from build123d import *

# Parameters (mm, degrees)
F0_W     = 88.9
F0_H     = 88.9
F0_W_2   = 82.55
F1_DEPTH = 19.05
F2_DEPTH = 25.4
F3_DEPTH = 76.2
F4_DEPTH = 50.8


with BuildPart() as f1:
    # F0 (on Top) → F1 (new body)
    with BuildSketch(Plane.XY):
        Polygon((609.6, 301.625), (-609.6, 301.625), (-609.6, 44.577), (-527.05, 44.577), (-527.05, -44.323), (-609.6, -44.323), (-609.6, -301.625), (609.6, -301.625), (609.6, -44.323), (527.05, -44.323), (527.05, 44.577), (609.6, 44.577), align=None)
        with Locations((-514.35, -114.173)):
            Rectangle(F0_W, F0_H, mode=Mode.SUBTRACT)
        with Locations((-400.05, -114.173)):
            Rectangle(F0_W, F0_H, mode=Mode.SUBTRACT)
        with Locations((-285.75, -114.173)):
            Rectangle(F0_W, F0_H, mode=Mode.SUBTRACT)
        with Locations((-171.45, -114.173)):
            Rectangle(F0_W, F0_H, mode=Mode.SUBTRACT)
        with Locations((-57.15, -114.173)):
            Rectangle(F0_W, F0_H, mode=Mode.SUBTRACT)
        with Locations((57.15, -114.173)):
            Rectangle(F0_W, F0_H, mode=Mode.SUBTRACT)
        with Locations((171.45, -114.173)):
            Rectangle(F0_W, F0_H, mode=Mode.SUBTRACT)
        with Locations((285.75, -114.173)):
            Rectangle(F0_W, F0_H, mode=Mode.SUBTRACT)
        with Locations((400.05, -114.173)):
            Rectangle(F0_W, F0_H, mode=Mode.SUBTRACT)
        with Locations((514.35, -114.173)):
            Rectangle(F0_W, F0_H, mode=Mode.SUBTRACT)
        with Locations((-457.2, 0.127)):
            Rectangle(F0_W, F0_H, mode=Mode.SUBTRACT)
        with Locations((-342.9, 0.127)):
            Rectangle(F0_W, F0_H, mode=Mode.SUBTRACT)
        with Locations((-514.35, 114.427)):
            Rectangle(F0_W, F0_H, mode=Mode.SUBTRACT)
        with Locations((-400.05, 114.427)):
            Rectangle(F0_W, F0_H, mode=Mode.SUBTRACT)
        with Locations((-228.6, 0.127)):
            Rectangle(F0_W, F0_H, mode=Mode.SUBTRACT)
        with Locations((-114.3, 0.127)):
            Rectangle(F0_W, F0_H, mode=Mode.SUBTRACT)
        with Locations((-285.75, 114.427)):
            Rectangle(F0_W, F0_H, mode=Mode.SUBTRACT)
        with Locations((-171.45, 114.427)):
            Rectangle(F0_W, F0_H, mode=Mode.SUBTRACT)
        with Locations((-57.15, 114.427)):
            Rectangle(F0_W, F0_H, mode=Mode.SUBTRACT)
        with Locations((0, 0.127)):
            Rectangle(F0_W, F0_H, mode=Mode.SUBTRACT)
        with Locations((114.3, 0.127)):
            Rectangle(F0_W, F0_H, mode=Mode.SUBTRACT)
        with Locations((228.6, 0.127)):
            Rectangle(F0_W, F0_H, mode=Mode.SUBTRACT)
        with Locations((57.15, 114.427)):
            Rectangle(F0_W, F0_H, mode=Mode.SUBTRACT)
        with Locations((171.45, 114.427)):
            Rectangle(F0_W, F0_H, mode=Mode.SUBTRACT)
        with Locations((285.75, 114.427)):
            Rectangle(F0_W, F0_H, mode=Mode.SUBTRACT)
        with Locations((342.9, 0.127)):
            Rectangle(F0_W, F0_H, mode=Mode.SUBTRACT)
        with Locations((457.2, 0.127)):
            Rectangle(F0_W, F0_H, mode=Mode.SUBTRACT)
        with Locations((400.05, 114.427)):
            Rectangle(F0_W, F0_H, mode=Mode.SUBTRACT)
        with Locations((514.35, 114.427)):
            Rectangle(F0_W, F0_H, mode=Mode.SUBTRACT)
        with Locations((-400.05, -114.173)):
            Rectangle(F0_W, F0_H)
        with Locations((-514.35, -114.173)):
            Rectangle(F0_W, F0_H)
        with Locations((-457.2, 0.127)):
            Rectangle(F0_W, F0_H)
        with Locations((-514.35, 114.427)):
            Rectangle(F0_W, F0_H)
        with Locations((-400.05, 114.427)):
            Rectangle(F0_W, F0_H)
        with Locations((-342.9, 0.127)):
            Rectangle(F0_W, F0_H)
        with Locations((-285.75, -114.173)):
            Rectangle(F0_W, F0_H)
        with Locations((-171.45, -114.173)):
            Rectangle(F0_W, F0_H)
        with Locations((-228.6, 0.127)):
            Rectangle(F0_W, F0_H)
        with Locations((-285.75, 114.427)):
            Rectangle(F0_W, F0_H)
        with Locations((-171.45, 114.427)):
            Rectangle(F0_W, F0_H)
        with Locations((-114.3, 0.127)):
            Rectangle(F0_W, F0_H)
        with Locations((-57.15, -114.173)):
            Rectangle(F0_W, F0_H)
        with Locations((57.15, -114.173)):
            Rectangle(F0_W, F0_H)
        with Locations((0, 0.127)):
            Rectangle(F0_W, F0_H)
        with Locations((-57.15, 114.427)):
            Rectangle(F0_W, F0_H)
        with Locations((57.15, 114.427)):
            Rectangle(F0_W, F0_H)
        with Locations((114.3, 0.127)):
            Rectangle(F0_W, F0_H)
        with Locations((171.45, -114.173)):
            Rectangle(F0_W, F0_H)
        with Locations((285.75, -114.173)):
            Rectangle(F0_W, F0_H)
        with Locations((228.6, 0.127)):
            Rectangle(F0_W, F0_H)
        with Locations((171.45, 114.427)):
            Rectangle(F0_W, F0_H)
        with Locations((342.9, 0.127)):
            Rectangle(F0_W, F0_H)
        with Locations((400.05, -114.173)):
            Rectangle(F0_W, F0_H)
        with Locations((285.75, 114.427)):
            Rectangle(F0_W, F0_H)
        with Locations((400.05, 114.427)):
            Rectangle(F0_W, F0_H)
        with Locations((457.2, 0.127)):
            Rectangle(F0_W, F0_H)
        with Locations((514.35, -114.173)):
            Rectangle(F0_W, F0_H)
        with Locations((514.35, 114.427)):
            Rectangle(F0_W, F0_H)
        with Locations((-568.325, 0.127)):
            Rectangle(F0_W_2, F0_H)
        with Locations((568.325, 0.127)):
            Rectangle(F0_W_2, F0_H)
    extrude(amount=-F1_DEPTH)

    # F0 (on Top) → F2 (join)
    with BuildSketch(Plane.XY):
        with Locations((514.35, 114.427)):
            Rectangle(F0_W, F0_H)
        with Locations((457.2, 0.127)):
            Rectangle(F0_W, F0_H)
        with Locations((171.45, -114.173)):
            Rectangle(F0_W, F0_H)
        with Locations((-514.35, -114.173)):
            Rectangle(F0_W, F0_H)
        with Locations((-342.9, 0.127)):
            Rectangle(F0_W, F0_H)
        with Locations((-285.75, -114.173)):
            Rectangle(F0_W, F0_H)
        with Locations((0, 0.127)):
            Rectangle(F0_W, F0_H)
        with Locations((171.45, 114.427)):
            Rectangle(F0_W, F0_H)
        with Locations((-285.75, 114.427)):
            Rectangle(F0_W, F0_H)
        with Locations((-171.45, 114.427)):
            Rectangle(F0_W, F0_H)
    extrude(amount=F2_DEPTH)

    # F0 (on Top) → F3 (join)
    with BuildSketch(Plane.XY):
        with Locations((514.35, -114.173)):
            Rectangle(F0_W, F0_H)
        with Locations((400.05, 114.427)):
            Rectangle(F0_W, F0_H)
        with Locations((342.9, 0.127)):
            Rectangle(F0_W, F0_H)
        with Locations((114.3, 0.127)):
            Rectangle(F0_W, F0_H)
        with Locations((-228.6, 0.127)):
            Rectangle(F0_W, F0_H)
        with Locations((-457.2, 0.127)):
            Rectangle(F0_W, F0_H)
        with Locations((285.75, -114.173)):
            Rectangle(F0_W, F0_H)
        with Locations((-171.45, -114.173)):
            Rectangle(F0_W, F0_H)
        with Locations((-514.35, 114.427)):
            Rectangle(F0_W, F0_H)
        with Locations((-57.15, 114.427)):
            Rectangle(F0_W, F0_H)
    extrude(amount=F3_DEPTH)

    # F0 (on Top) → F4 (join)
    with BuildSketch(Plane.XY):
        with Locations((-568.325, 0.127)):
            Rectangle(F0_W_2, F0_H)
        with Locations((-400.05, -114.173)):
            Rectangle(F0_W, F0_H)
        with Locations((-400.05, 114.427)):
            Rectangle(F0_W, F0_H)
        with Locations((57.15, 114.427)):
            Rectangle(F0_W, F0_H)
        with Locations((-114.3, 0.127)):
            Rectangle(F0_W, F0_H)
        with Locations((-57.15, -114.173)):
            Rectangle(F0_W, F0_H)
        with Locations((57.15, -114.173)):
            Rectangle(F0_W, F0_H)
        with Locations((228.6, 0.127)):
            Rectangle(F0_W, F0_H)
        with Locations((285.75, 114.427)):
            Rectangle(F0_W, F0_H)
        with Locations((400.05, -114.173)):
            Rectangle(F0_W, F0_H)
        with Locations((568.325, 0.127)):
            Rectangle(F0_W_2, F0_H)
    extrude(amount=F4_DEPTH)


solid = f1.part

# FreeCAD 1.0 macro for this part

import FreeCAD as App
import Part
import Sketcher
Q = App.Units.Quantity

doc = App.newDocument("Part")
params = doc.addObject("Spreadsheet::Sheet", "Params")
for row, (alias, value) in enumerate([
    ("sketch1_width", "48 in"),
    ("sketch1_height", "23.75 in"),
    ("pad1_length", "0.75 in"),
    ("sketch2_width", "3.5 in"),
    ("pad2_length", "1 in"),
    ("sketch3_width", "3.5 in"),
    ("pad3_length", "3 in"),
    ("sketch4_width", "3.5 in"),
    ("sketch4_width2", "3.25 in"),
    ("pad4_length", "2 in"),
], start=1):
    params.set(f"A{row}", alias)
    params.set(f"B{row}", "=" + value)
    params.setAlias(f"B{row}", alias)

body = doc.addObject("PartDesign::Body", "Body")

sketch1 = body.newObject("Sketcher::SketchObject", "Sketch")
sketch1.AttachmentSupport = (doc.getObject("XY_Plane"), [""])
sketch1.MapMode = "FlatFace"
sketch1.addGeometry(Part.LineSegment(App.Vector(609.6, 301.625, 0), App.Vector(-609.6, 301.625, 0)), False)
sketch1.addGeometry(Part.LineSegment(App.Vector(-609.6, 301.625, 0), App.Vector(-609.6, -301.625, 0)), False)
sketch1.addGeometry(Part.LineSegment(App.Vector(-609.6, -301.625, 0), App.Vector(609.6, -301.625, 0)), False)
sketch1.addGeometry(Part.LineSegment(App.Vector(609.6, -301.625, 0), App.Vector(609.6, 301.625, 0)), False)
sketch1.addConstraint(Sketcher.Constraint("Coincident", 0, 2, 1, 1))
sketch1.addConstraint(Sketcher.Constraint("Coincident", 1, 2, 2, 1))
sketch1.addConstraint(Sketcher.Constraint("Coincident", 2, 2, 3, 1))
sketch1.addConstraint(Sketcher.Constraint("Coincident", 3, 2, 0, 1))
sketch1.addConstraint(Sketcher.Constraint("Horizontal", 0))
sketch1.addConstraint(Sketcher.Constraint("Vertical", 1))
sketch1.addConstraint(Sketcher.Constraint("Horizontal", 2))
sketch1.addConstraint(Sketcher.Constraint("Vertical", 3))
sketch1.addConstraint(Sketcher.Constraint("Symmetric", 0, 2, 2, 2, -1, 1))
sketch1.addConstraint(Sketcher.Constraint("DistanceX", 0, 2, 0, 1, Q("48 in")))
sketch1.addConstraint(Sketcher.Constraint("DistanceY", 1, 2, 1, 1, Q("23.75 in")))
sketch1.setExpression("Constraints[9]", "Params.sketch1_width")
sketch1.setExpression("Constraints[10]", "Params.sketch1_height")
pad1 = body.newObject("PartDesign::Pad", "Pad")
pad1.Profile = sketch1
pad1.setExpression("Length", "Params.pad1_length")
pad1.Reversed = True

sketch2 = body.newObject("Sketcher::SketchObject", "Sketch001")
sketch2.AttachmentSupport = (doc.getObject("XY_Plane"), [""])
sketch2.MapMode = "FlatFace"
sketch2.addGeometry(Part.LineSegment(App.Vector(469.9, 158.877, 0), App.Vector(469.9, 69.977, 0)), False)
sketch2.addGeometry(Part.LineSegment(App.Vector(469.9, 69.977, 0), App.Vector(558.8, 69.977, 0)), False)
sketch2.addGeometry(Part.LineSegment(App.Vector(558.8, 69.977, 0), App.Vector(558.8, 158.877, 0)), False)
sketch2.addGeometry(Part.LineSegment(App.Vector(558.8, 158.877, 0), App.Vector(469.9, 158.877, 0)), False)
sketch2.addGeometry(Part.LineSegment(App.Vector(412.75, 44.577, 0), App.Vector(412.75, -44.323, 0)), False)
sketch2.addGeometry(Part.LineSegment(App.Vector(412.75, -44.323, 0), App.Vector(501.65, -44.323, 0)), False)
sketch2.addGeometry(Part.LineSegment(App.Vector(501.65, -44.323, 0), App.Vector(501.65, 44.577, 0)), False)
sketch2.addGeometry(Part.LineSegment(App.Vector(501.65, 44.577, 0), App.Vector(412.75, 44.577, 0)), False)
sketch2.addGeometry(Part.LineSegment(App.Vector(127, -69.723, 0), App.Vector(127, -158.623, 0)), False)
sketch2.addGeometry(Part.LineSegment(App.Vector(127, -158.623, 0), App.Vector(215.9, -158.623, 0)), False)
sketch2.addGeometry(Part.LineSegment(App.Vector(215.9, -158.623, 0), App.Vector(215.9, -69.723, 0)), False)
sketch2.addGeometry(Part.LineSegment(App.Vector(215.9, -69.723, 0), App.Vector(127, -69.723, 0)), False)
sketch2.addGeometry(Part.LineSegment(App.Vector(-558.8, -69.723, 0), App.Vector(-558.8, -158.623, 0)), False)
sketch2.addGeometry(Part.LineSegment(App.Vector(-558.8, -158.623, 0), App.Vector(-469.9, -158.623, 0)), False)
sketch2.addGeometry(Part.LineSegment(App.Vector(-469.9, -158.623, 0), App.Vector(-469.9, -69.723, 0)), False)
sketch2.addGeometry(Part.LineSegment(App.Vector(-469.9, -69.723, 0), App.Vector(-558.8, -69.723, 0)), False)
sketch2.addGeometry(Part.LineSegment(App.Vector(-387.35, 44.577, 0), App.Vector(-387.35, -44.323, 0)), False)
sketch2.addGeometry(Part.LineSegment(App.Vector(-387.35, -44.323, 0), App.Vector(-298.45, -44.323, 0)), False)
sketch2.addGeometry(Part.LineSegment(App.Vector(-298.45, -44.323, 0), App.Vector(-298.45, 44.577, 0)), False)
sketch2.addGeometry(Part.LineSegment(App.Vector(-298.45, 44.577, 0), App.Vector(-387.35, 44.577, 0)), False)
sketch2.addGeometry(Part.LineSegment(App.Vector(-330.2, -69.723, 0), App.Vector(-330.2, -158.623, 0)), False)
sketch2.addGeometry(Part.LineSegment(App.Vector(-330.2, -158.623, 0), App.Vector(-241.3, -158.623, 0)), False)
sketch2.addGeometry(Part.LineSegment(App.Vector(-241.3, -158.623, 0), App.Vector(-241.3, -69.723, 0)), False)
sketch2.addGeometry(Part.LineSegment(App.Vector(-241.3, -69.723, 0), App.Vector(-330.2, -69.723, 0)), False)
sketch2.addGeometry(Part.LineSegment(App.Vector(-44.45, 44.577, 0), App.Vector(-44.45, -44.323, 0)), False)
sketch2.addGeometry(Part.LineSegment(App.Vector(-44.45, -44.323, 0), App.Vector(44.45, -44.323, 0)), False)
sketch2.addGeometry(Part.LineSegment(App.Vector(44.45, -44.323, 0), App.Vector(44.45, 44.577, 0)), False)
sketch2.addGeometry(Part.LineSegment(App.Vector(44.45, 44.577, 0), App.Vector(-44.45, 44.577, 0)), False)
sketch2.addGeometry(Part.LineSegment(App.Vector(127, 158.877, 0), App.Vector(127, 69.977, 0)), False)
sketch2.addGeometry(Part.LineSegment(App.Vector(127, 69.977, 0), App.Vector(215.9, 69.977, 0)), False)
sketch2.addGeometry(Part.LineSegment(App.Vector(215.9, 69.977, 0), App.Vector(215.9, 158.877, 0)), False)
sketch2.addGeometry(Part.LineSegment(App.Vector(215.9, 158.877, 0), App.Vector(127, 158.877, 0)), False)
sketch2.addGeometry(Part.LineSegment(App.Vector(-330.2, 158.877, 0), App.Vector(-330.2, 69.977, 0)), False)
sketch2.addGeometry(Part.LineSegment(App.Vector(-330.2, 69.977, 0), App.Vector(-241.3, 69.977, 0)), False)
sketch2.addGeometry(Part.LineSegment(App.Vector(-241.3, 69.977, 0), App.Vector(-241.3, 158.877, 0)), False)
sketch2.addGeometry(Part.LineSegment(App.Vector(-241.3, 158.877, 0), App.Vector(-330.2, 158.877, 0)), False)
sketch2.addGeometry(Part.LineSegment(App.Vector(-215.9, 158.877, 0), App.Vector(-215.9, 69.977, 0)), False)
sketch2.addGeometry(Part.LineSegment(App.Vector(-215.9, 69.977, 0), App.Vector(-127, 69.977, 0)), False)
sketch2.addGeometry(Part.LineSegment(App.Vector(-127, 69.977, 0), App.Vector(-127, 158.877, 0)), False)
sketch2.addGeometry(Part.LineSegment(App.Vector(-127, 158.877, 0), App.Vector(-215.9, 158.877, 0)), False)
sketch2.addConstraint(Sketcher.Constraint("Coincident", 0, 2, 1, 1))
sketch2.addConstraint(Sketcher.Constraint("Coincident", 1, 2, 2, 1))
sketch2.addConstraint(Sketcher.Constraint("Coincident", 2, 2, 3, 1))
sketch2.addConstraint(Sketcher.Constraint("Coincident", 3, 2, 0, 1))
sketch2.addConstraint(Sketcher.Constraint("Coincident", 4, 2, 5, 1))
sketch2.addConstraint(Sketcher.Constraint("Coincident", 5, 2, 6, 1))
sketch2.addConstraint(Sketcher.Constraint("Coincident", 6, 2, 7, 1))
sketch2.addConstraint(Sketcher.Constraint("Coincident", 7, 2, 4, 1))
sketch2.addConstraint(Sketcher.Constraint("Coincident", 8, 2, 9, 1))
sketch2.addConstraint(Sketcher.Constraint("Coincident", 9, 2, 10, 1))
sketch2.addConstraint(Sketcher.Constraint("Coincident", 10, 2, 11, 1))
sketch2.addConstraint(Sketcher.Constraint("Coincident", 11, 2, 8, 1))
sketch2.addConstraint(Sketcher.Constraint("Coincident", 12, 2, 13, 1))
sketch2.addConstraint(Sketcher.Constraint("Coincident", 13, 2, 14, 1))
sketch2.addConstraint(Sketcher.Constraint("Coincident", 14, 2, 15, 1))
sketch2.addConstraint(Sketcher.Constraint("Coincident", 15, 2, 12, 1))
sketch2.addConstraint(Sketcher.Constraint("Coincident", 16, 2, 17, 1))
sketch2.addConstraint(Sketcher.Constraint("Coincident", 17, 2, 18, 1))
sketch2.addConstraint(Sketcher.Constraint("Coincident", 18, 2, 19, 1))
sketch2.addConstraint(Sketcher.Constraint("Coincident", 19, 2, 16, 1))
sketch2.addConstraint(Sketcher.Constraint("Coincident", 20, 2, 21, 1))
sketch2.addConstraint(Sketcher.Constraint("Coincident", 21, 2, 22, 1))
sketch2.addConstraint(Sketcher.Constraint("Coincident", 22, 2, 23, 1))
sketch2.addConstraint(Sketcher.Constraint("Coincident", 23, 2, 20, 1))
sketch2.addConstraint(Sketcher.Constraint("Coincident", 24, 2, 25, 1))
sketch2.addConstraint(Sketcher.Constraint("Coincident", 25, 2, 26, 1))
sketch2.addConstraint(Sketcher.Constraint("Coincident", 26, 2, 27, 1))
sketch2.addConstraint(Sketcher.Constraint("Coincident", 27, 2, 24, 1))
sketch2.addConstraint(Sketcher.Constraint("Coincident", 28, 2, 29, 1))
sketch2.addConstraint(Sketcher.Constraint("Coincident", 29, 2, 30, 1))
sketch2.addConstraint(Sketcher.Constraint("Coincident", 30, 2, 31, 1))
sketch2.addConstraint(Sketcher.Constraint("Coincident", 31, 2, 28, 1))
sketch2.addConstraint(Sketcher.Constraint("Coincident", 32, 2, 33, 1))
sketch2.addConstraint(Sketcher.Constraint("Coincident", 33, 2, 34, 1))
sketch2.addConstraint(Sketcher.Constraint("Coincident", 34, 2, 35, 1))
sketch2.addConstraint(Sketcher.Constraint("Coincident", 35, 2, 32, 1))
sketch2.addConstraint(Sketcher.Constraint("Coincident", 36, 2, 37, 1))
sketch2.addConstraint(Sketcher.Constraint("Coincident", 37, 2, 38, 1))
sketch2.addConstraint(Sketcher.Constraint("Coincident", 38, 2, 39, 1))
sketch2.addConstraint(Sketcher.Constraint("Coincident", 39, 2, 36, 1))
sketch2.addConstraint(Sketcher.Constraint("Vertical", 0))
sketch2.addConstraint(Sketcher.Constraint("Horizontal", 1))
sketch2.addConstraint(Sketcher.Constraint("Vertical", 2))
sketch2.addConstraint(Sketcher.Constraint("Horizontal", 3))
sketch2.addConstraint(Sketcher.Constraint("Vertical", 4))
sketch2.addConstraint(Sketcher.Constraint("Horizontal", 5))
sketch2.addConstraint(Sketcher.Constraint("Vertical", 6))
sketch2.addConstraint(Sketcher.Constraint("Horizontal", 7))
sketch2.addConstraint(Sketcher.Constraint("Vertical", 8))
sketch2.addConstraint(Sketcher.Constraint("Horizontal", 9))
sketch2.addConstraint(Sketcher.Constraint("Vertical", 10))
sketch2.addConstraint(Sketcher.Constraint("Horizontal", 11))
sketch2.addConstraint(Sketcher.Constraint("Vertical", 12))
sketch2.addConstraint(Sketcher.Constraint("Horizontal", 13))
sketch2.addConstraint(Sketcher.Constraint("Vertical", 14))
sketch2.addConstraint(Sketcher.Constraint("Horizontal", 15))
sketch2.addConstraint(Sketcher.Constraint("Vertical", 16))
sketch2.addConstraint(Sketcher.Constraint("Horizontal", 17))
sketch2.addConstraint(Sketcher.Constraint("Vertical", 18))
sketch2.addConstraint(Sketcher.Constraint("Horizontal", 19))
sketch2.addConstraint(Sketcher.Constraint("Vertical", 20))
sketch2.addConstraint(Sketcher.Constraint("Horizontal", 21))
sketch2.addConstraint(Sketcher.Constraint("Vertical", 22))
sketch2.addConstraint(Sketcher.Constraint("Horizontal", 23))
sketch2.addConstraint(Sketcher.Constraint("Vertical", 24))
sketch2.addConstraint(Sketcher.Constraint("Horizontal", 25))
sketch2.addConstraint(Sketcher.Constraint("Vertical", 26))
sketch2.addConstraint(Sketcher.Constraint("Horizontal", 27))
sketch2.addConstraint(Sketcher.Constraint("Vertical", 28))
sketch2.addConstraint(Sketcher.Constraint("Horizontal", 29))
sketch2.addConstraint(Sketcher.Constraint("Vertical", 30))
sketch2.addConstraint(Sketcher.Constraint("Horizontal", 31))
sketch2.addConstraint(Sketcher.Constraint("Vertical", 32))
sketch2.addConstraint(Sketcher.Constraint("Horizontal", 33))
sketch2.addConstraint(Sketcher.Constraint("Vertical", 34))
sketch2.addConstraint(Sketcher.Constraint("Horizontal", 35))
sketch2.addConstraint(Sketcher.Constraint("Vertical", 36))
sketch2.addConstraint(Sketcher.Constraint("Horizontal", 37))
sketch2.addConstraint(Sketcher.Constraint("Vertical", 38))
sketch2.addConstraint(Sketcher.Constraint("Horizontal", 39))
sketch2.addConstraint(Sketcher.Constraint("Symmetric", 29, 2, 36, 2, -2))
sketch2.addConstraint(Sketcher.Constraint("Symmetric", 31, 2, 38, 2, -2))
sketch2.addConstraint(Sketcher.Constraint("Horizontal", 9, 2, 12, 2))
sketch2.addConstraint(Sketcher.Constraint("Horizontal", 11, 2, 14, 2))
sketch2.addConstraint(Sketcher.Constraint("Horizontal", 5, 2, 16, 2))
sketch2.addConstraint(Sketcher.Constraint("Horizontal", 7, 2, 18, 2))
sketch2.addConstraint(Sketcher.Constraint("Horizontal", 13, 2, 20, 2))
sketch2.addConstraint(Sketcher.Constraint("Horizontal", 15, 2, 22, 2))
sketch2.addConstraint(Sketcher.Constraint("Horizontal", 17, 2, 24, 2))
sketch2.addConstraint(Sketcher.Constraint("Horizontal", 19, 2, 26, 2))
sketch2.addConstraint(Sketcher.Constraint("Horizontal", 1, 2, 28, 2))
sketch2.addConstraint(Sketcher.Constraint("Horizontal", 3, 2, 30, 2))
sketch2.addConstraint(Sketcher.Constraint("Horizontal", 29, 2, 32, 2))
sketch2.addConstraint(Sketcher.Constraint("Horizontal", 31, 2, 34, 2))
sketch2.addConstraint(Sketcher.Constraint("Vertical", 11, 2, 28, 2))
sketch2.addConstraint(Sketcher.Constraint("Vertical", 10, 2, 29, 2))
sketch2.addConstraint(Sketcher.Constraint("Vertical", 23, 2, 32, 2))
sketch2.addConstraint(Sketcher.Constraint("Vertical", 22, 2, 33, 2))
sketch2.addConstraint(Sketcher.Constraint("Equal", 3, 5))
sketch2.addConstraint(Sketcher.Constraint("Equal", 7, 9))
sketch2.addConstraint(Sketcher.Constraint("Equal", 11, 13))
sketch2.addConstraint(Sketcher.Constraint("Equal", 15, 17))
sketch2.addConstraint(Sketcher.Constraint("Equal", 19, 21))
sketch2.addConstraint(Sketcher.Constraint("Equal", 23, 25))
sketch2.addConstraint(Sketcher.Constraint("Equal", 39, 0))
sketch2.addConstraint(Sketcher.Constraint("Equal", 2, 4))
sketch2.addConstraint(Sketcher.Constraint("Equal", 6, 8))
sketch2.addConstraint(Sketcher.Constraint("DistanceX", 1, 1, 1, 2, Q("3.5 in")))
sketch2.addConstraint(Sketcher.Constraint("DistanceX", -1, 1, 1, 2, Q("22 in")))
sketch2.addConstraint(Sketcher.Constraint("DistanceX", -1, 1, 8, 2, Q("5 in")))
sketch2.addConstraint(Sketcher.Constraint("DistanceX", 12, 2, -1, 1, Q("22 in")))
sketch2.addConstraint(Sketcher.Constraint("DistanceX", 20, 2, -1, 1, Q("13 in")))
sketch2.addConstraint(Sketcher.Constraint("DistanceY", 4, 2, 3, 2, Q("8 in")))
sketch2.addConstraint(Sketcher.Constraint("DistanceY", 8, 2, 7, 2, Q("8 in")))
sketch2.addConstraint(Sketcher.Constraint("DistanceX", 17, 2, 24, 2, Q("10 in")))
sketch2.addConstraint(Sketcher.Constraint("DistanceX", -1, 1, 4, 2, Q("16.25 in")))
sketch2.addConstraint(Sketcher.Constraint("DistanceX", 16, 2, -1, 1, Q("15.25 in")))
sketch2.addConstraint(Sketcher.Constraint("DistanceY", -1, 1, 0, 2, Q("2.755 in")))
sketch2.setExpression("Constraints[107]", "Params.sketch2_width")
pad2 = body.newObject("PartDesign::Pad", "Pad001")
pad2.Profile = sketch2
pad2.setExpression("Length", "Params.pad2_length")

sketch3 = body.newObject("Sketcher::SketchObject", "Sketch002")
sketch3.AttachmentSupport = (doc.getObject("XY_Plane"), [""])
sketch3.MapMode = "FlatFace"
sketch3.addGeometry(Part.LineSegment(App.Vector(469.9, -69.723, 0), App.Vector(469.9, -158.623, 0)), False)
sketch3.addGeometry(Part.LineSegment(App.Vector(469.9, -158.623, 0), App.Vector(558.8, -158.623, 0)), False)
sketch3.addGeometry(Part.LineSegment(App.Vector(558.8, -158.623, 0), App.Vector(558.8, -69.723, 0)), False)
sketch3.addGeometry(Part.LineSegment(App.Vector(558.8, -69.723, 0), App.Vector(469.9, -69.723, 0)), False)
sketch3.addGeometry(Part.LineSegment(App.Vector(355.6, 158.877, 0), App.Vector(355.6, 69.977, 0)), False)
sketch3.addGeometry(Part.LineSegment(App.Vector(355.6, 69.977, 0), App.Vector(444.5, 69.977, 0)), False)
sketch3.addGeometry(Part.LineSegment(App.Vector(444.5, 69.977, 0), App.Vector(444.5, 158.877, 0)), False)
sketch3.addGeometry(Part.LineSegment(App.Vector(444.5, 158.877, 0), App.Vector(355.6, 158.877, 0)), False)
sketch3.addGeometry(Part.LineSegment(App.Vector(298.45, 44.577, 0), App.Vector(298.45, -44.323, 0)), False)
sketch3.addGeometry(Part.LineSegment(App.Vector(298.45, -44.323, 0), App.Vector(387.35, -44.323, 0)), False)
sketch3.addGeometry(Part.LineSegment(App.Vector(387.35, -44.323, 0), App.Vector(387.35, 44.577, 0)), False)
sketch3.addGeometry(Part.LineSegment(App.Vector(387.35, 44.577, 0), App.Vector(298.45, 44.577, 0)), False)
sketch3.addGeometry(Part.LineSegment(App.Vector(69.85, 44.577, 0), App.Vector(69.85, -44.323, 0)), False)
sketch3.addGeometry(Part.LineSegment(App.Vector(69.85, -44.323, 0), App.Vector(158.75, -44.323, 0)), False)
sketch3.addGeometry(Part.LineSegment(App.Vector(158.75, -44.323, 0), App.Vector(158.75, 44.577, 0)), False)
sketch3.addGeometry(Part.LineSegment(App.Vector(158.75, 44.577, 0), App.Vector(69.85, 44.577, 0)), False)
sketch3.addGeometry(Part.LineSegment(App.Vector(-273.05, 44.577, 0), App.Vector(-273.05, -44.323, 0)), False)
sketch3.addGeometry(Part.LineSegment(App.Vector(-273.05, -44.323, 0), App.Vector(-184.15, -44.323, 0)), False)
sketch3.addGeometry(Part.LineSegment(App.Vector(-184.15, -44.323, 0), App.Vector(-184.15, 44.577, 0)), False)
sketch3.addGeometry(Part.LineSegment(App.Vector(-184.15, 44.577, 0), App.Vector(-273.05, 44.577, 0)), False)
sketch3.addGeometry(Part.LineSegment(App.Vector(-501.65, 44.577, 0), App.Vector(-501.65, -44.323, 0)), False)
sketch3.addGeometry(Part.LineSegment(App.Vector(-501.65, -44.323, 0), App.Vector(-412.75, -44.323, 0)), False)
sketch3.addGeometry(Part.LineSegment(App.Vector(-412.75, -44.323, 0), App.Vector(-412.75, 44.577, 0)), False)
sketch3.addGeometry(Part.LineSegment(App.Vector(-412.75, 44.577, 0), App.Vector(-501.65, 44.577, 0)), False)
sketch3.addGeometry(Part.LineSegment(App.Vector(241.3, -69.723, 0), App.Vector(241.3, -158.623, 0)), False)
sketch3.addGeometry(Part.LineSegment(App.Vector(241.3, -158.623, 0), App.Vector(330.2, -158.623, 0)), False)
sketch3.addGeometry(Part.LineSegment(App.Vector(330.2, -158.623, 0), App.Vector(330.2, -69.723, 0)), False)
sketch3.addGeometry(Part.LineSegment(App.Vector(330.2, -69.723, 0), App.Vector(241.3, -69.723, 0)), False)
sketch3.addGeometry(Part.LineSegment(App.Vector(-215.9, -69.723, 0), App.Vector(-215.9, -158.623, 0)), False)
sketch3.addGeometry(Part.LineSegment(App.Vector(-215.9, -158.623, 0), App.Vector(-127, -158.623, 0)), False)
sketch3.addGeometry(Part.LineSegment(App.Vector(-127, -158.623, 0), App.Vector(-127, -69.723, 0)), False)
sketch3.addGeometry(Part.LineSegment(App.Vector(-127, -69.723, 0), App.Vector(-215.9, -69.723, 0)), False)
sketch3.addGeometry(Part.LineSegment(App.Vector(-558.8, 158.877, 0), App.Vector(-558.8, 69.977, 0)), False)
sketch3.addGeometry(Part.LineSegment(App.Vector(-558.8, 69.977, 0), App.Vector(-469.9, 69.977, 0)), False)
sketch3.addGeometry(Part.LineSegment(App.Vector(-469.9, 69.977, 0), App.Vector(-469.9, 158.877, 0)), False)
sketch3.addGeometry(Part.LineSegment(App.Vector(-469.9, 158.877, 0), App.Vector(-558.8, 158.877, 0)), False)
sketch3.addGeometry(Part.LineSegment(App.Vector(-101.6, 158.877, 0), App.Vector(-101.6, 69.977, 0)), False)
sketch3.addGeometry(Part.LineSegment(App.Vector(-101.6, 69.977, 0), App.Vector(-12.7, 69.977, 0)), False)
sketch3.addGeometry(Part.LineSegment(App.Vector(-12.7, 69.977, 0), App.Vector(-12.7, 158.877, 0)), False)
sketch3.addGeometry(Part.LineSegment(App.Vector(-12.7, 158.877, 0), App.Vector(-101.6, 158.877, 0)), False)
sketch3.addConstraint(Sketcher.Constraint("Coincident", 0, 2, 1, 1))
sketch3.addConstraint(Sketcher.Constraint("Coincident", 1, 2, 2, 1))
sketch3.addConstraint(Sketcher.Constraint("Coincident", 2, 2, 3, 1))
sketch3.addConstraint(Sketcher.Constraint("Coincident", 3, 2, 0, 1))
sketch3.addConstraint(Sketcher.Constraint("Coincident", 4, 2, 5, 1))
sketch3.addConstraint(Sketcher.Constraint("Coincident", 5, 2, 6, 1))
sketch3.addConstraint(Sketcher.Constraint("Coincident", 6, 2, 7, 1))
sketch3.addConstraint(Sketcher.Constraint("Coincident", 7, 2, 4, 1))
sketch3.addConstraint(Sketcher.Constraint("Coincident", 8, 2, 9, 1))
sketch3.addConstraint(Sketcher.Constraint("Coincident", 9, 2, 10, 1))
sketch3.addConstraint(Sketcher.Constraint("Coincident", 10, 2, 11, 1))
sketch3.addConstraint(Sketcher.Constraint("Coincident", 11, 2, 8, 1))
sketch3.addConstraint(Sketcher.Constraint("Coincident", 12, 2, 13, 1))
sketch3.addConstraint(Sketcher.Constraint("Coincident", 13, 2, 14, 1))
sketch3.addConstraint(Sketcher.Constraint("Coincident", 14, 2, 15, 1))
sketch3.addConstraint(Sketcher.Constraint("Coincident", 15, 2, 12, 1))
sketch3.addConstraint(Sketcher.Constraint("Coincident", 16, 2, 17, 1))
sketch3.addConstraint(Sketcher.Constraint("Coincident", 17, 2, 18, 1))
sketch3.addConstraint(Sketcher.Constraint("Coincident", 18, 2, 19, 1))
sketch3.addConstraint(Sketcher.Constraint("Coincident", 19, 2, 16, 1))
sketch3.addConstraint(Sketcher.Constraint("Coincident", 20, 2, 21, 1))
sketch3.addConstraint(Sketcher.Constraint("Coincident", 21, 2, 22, 1))
sketch3.addConstraint(Sketcher.Constraint("Coincident", 22, 2, 23, 1))
sketch3.addConstraint(Sketcher.Constraint("Coincident", 23, 2, 20, 1))
sketch3.addConstraint(Sketcher.Constraint("Coincident", 24, 2, 25, 1))
sketch3.addConstraint(Sketcher.Constraint("Coincident", 25, 2, 26, 1))
sketch3.addConstraint(Sketcher.Constraint("Coincident", 26, 2, 27, 1))
sketch3.addConstraint(Sketcher.Constraint("Coincident", 27, 2, 24, 1))
sketch3.addConstraint(Sketcher.Constraint("Coincident", 28, 2, 29, 1))
sketch3.addConstraint(Sketcher.Constraint("Coincident", 29, 2, 30, 1))
sketch3.addConstraint(Sketcher.Constraint("Coincident", 30, 2, 31, 1))
sketch3.addConstraint(Sketcher.Constraint("Coincident", 31, 2, 28, 1))
sketch3.addConstraint(Sketcher.Constraint("Coincident", 32, 2, 33, 1))
sketch3.addConstraint(Sketcher.Constraint("Coincident", 33, 2, 34, 1))
sketch3.addConstraint(Sketcher.Constraint("Coincident", 34, 2, 35, 1))
sketch3.addConstraint(Sketcher.Constraint("Coincident", 35, 2, 32, 1))
sketch3.addConstraint(Sketcher.Constraint("Coincident", 36, 2, 37, 1))
sketch3.addConstraint(Sketcher.Constraint("Coincident", 37, 2, 38, 1))
sketch3.addConstraint(Sketcher.Constraint("Coincident", 38, 2, 39, 1))
sketch3.addConstraint(Sketcher.Constraint("Coincident", 39, 2, 36, 1))
sketch3.addConstraint(Sketcher.Constraint("Vertical", 0))
sketch3.addConstraint(Sketcher.Constraint("Horizontal", 1))
sketch3.addConstraint(Sketcher.Constraint("Vertical", 2))
sketch3.addConstraint(Sketcher.Constraint("Horizontal", 3))
sketch3.addConstraint(Sketcher.Constraint("Vertical", 4))
sketch3.addConstraint(Sketcher.Constraint("Horizontal", 5))
sketch3.addConstraint(Sketcher.Constraint("Vertical", 6))
sketch3.addConstraint(Sketcher.Constraint("Horizontal", 7))
sketch3.addConstraint(Sketcher.Constraint("Vertical", 8))
sketch3.addConstraint(Sketcher.Constraint("Horizontal", 9))
sketch3.addConstraint(Sketcher.Constraint("Vertical", 10))
sketch3.addConstraint(Sketcher.Constraint("Horizontal", 11))
sketch3.addConstraint(Sketcher.Constraint("Vertical", 12))
sketch3.addConstraint(Sketcher.Constraint("Horizontal", 13))
sketch3.addConstraint(Sketcher.Constraint("Vertical", 14))
sketch3.addConstraint(Sketcher.Constraint("Horizontal", 15))
sketch3.addConstraint(Sketcher.Constraint("Vertical", 16))
sketch3.addConstraint(Sketcher.Constraint("Horizontal", 17))
sketch3.addConstraint(Sketcher.Constraint("Vertical", 18))
sketch3.addConstraint(Sketcher.Constraint("Horizontal", 19))
sketch3.addConstraint(Sketcher.Constraint("Vertical", 20))
sketch3.addConstraint(Sketcher.Constraint("Horizontal", 21))
sketch3.addConstraint(Sketcher.Constraint("Vertical", 22))
sketch3.addConstraint(Sketcher.Constraint("Horizontal", 23))
sketch3.addConstraint(Sketcher.Constraint("Vertical", 24))
sketch3.addConstraint(Sketcher.Constraint("Horizontal", 25))
sketch3.addConstraint(Sketcher.Constraint("Vertical", 26))
sketch3.addConstraint(Sketcher.Constraint("Horizontal", 27))
sketch3.addConstraint(Sketcher.Constraint("Vertical", 28))
sketch3.addConstraint(Sketcher.Constraint("Horizontal", 29))
sketch3.addConstraint(Sketcher.Constraint("Vertical", 30))
sketch3.addConstraint(Sketcher.Constraint("Horizontal", 31))
sketch3.addConstraint(Sketcher.Constraint("Vertical", 32))
sketch3.addConstraint(Sketcher.Constraint("Horizontal", 33))
sketch3.addConstraint(Sketcher.Constraint("Vertical", 34))
sketch3.addConstraint(Sketcher.Constraint("Horizontal", 35))
sketch3.addConstraint(Sketcher.Constraint("Vertical", 36))
sketch3.addConstraint(Sketcher.Constraint("Horizontal", 37))
sketch3.addConstraint(Sketcher.Constraint("Vertical", 38))
sketch3.addConstraint(Sketcher.Constraint("Horizontal", 39))
sketch3.addConstraint(Sketcher.Constraint("Horizontal", 9, 2, 12, 2))
sketch3.addConstraint(Sketcher.Constraint("Horizontal", 11, 2, 14, 2))
sketch3.addConstraint(Sketcher.Constraint("Horizontal", 13, 2, 16, 2))
sketch3.addConstraint(Sketcher.Constraint("Horizontal", 15, 2, 18, 2))
sketch3.addConstraint(Sketcher.Constraint("Horizontal", 17, 2, 20, 2))
sketch3.addConstraint(Sketcher.Constraint("Horizontal", 19, 2, 22, 2))
sketch3.addConstraint(Sketcher.Constraint("Horizontal", 1, 2, 24, 2))
sketch3.addConstraint(Sketcher.Constraint("Horizontal", 3, 2, 26, 2))
sketch3.addConstraint(Sketcher.Constraint("Horizontal", 25, 2, 28, 2))
sketch3.addConstraint(Sketcher.Constraint("Horizontal", 27, 2, 30, 2))
sketch3.addConstraint(Sketcher.Constraint("Horizontal", 5, 2, 32, 2))
sketch3.addConstraint(Sketcher.Constraint("Horizontal", 7, 2, 34, 2))
sketch3.addConstraint(Sketcher.Constraint("Horizontal", 33, 2, 36, 2))
sketch3.addConstraint(Sketcher.Constraint("Horizontal", 35, 2, 38, 2))
sketch3.addConstraint(Sketcher.Constraint("Equal", 3, 5))
sketch3.addConstraint(Sketcher.Constraint("Equal", 7, 9))
sketch3.addConstraint(Sketcher.Constraint("Equal", 11, 13))
sketch3.addConstraint(Sketcher.Constraint("Equal", 15, 17))
sketch3.addConstraint(Sketcher.Constraint("Equal", 19, 21))
sketch3.addConstraint(Sketcher.Constraint("Equal", 23, 25))
sketch3.addConstraint(Sketcher.Constraint("Equal", 27, 29))
sketch3.addConstraint(Sketcher.Constraint("Equal", 31, 33))
sketch3.addConstraint(Sketcher.Constraint("Equal", 35, 37))
sketch3.addConstraint(Sketcher.Constraint("Equal", 39, 0))
sketch3.addConstraint(Sketcher.Constraint("Equal", 2, 4))
sketch3.addConstraint(Sketcher.Constraint("Equal", 6, 8))
sketch3.addConstraint(Sketcher.Constraint("DistanceX", 1, 1, 1, 2, Q("3.5 in")))
sketch3.addConstraint(Sketcher.Constraint("DistanceX", -1, 1, 1, 2, Q("22 in")))
sketch3.addConstraint(Sketcher.Constraint("DistanceX", -1, 1, 4, 2, Q("14 in")))
sketch3.addConstraint(Sketcher.Constraint("DistanceX", -1, 1, 25, 2, Q("13 in")))
sketch3.addConstraint(Sketcher.Constraint("DistanceX", 29, 2, -1, 1, Q("5 in")))
sketch3.addConstraint(Sketcher.Constraint("DistanceX", 32, 2, -1, 1, Q("22 in")))
sketch3.addConstraint(Sketcher.Constraint("DistanceX", 36, 2, -1, 1, Q("4 in")))
sketch3.addConstraint(Sketcher.Constraint("DistanceY", 0, 2, 4, 2, Q("9 in")))
sketch3.addConstraint(Sketcher.Constraint("DistanceY", 3, 2, 8, 2, Q("1 in")))
sketch3.addConstraint(Sketcher.Constraint("DistanceX", 12, 2, 8, 2, Q("9 in")))
sketch3.addConstraint(Sketcher.Constraint("DistanceX", 16, 2, 13, 2, Q("17 in")))
sketch3.addConstraint(Sketcher.Constraint("DistanceX", 20, 2, 16, 2, Q("9 in")))
sketch3.addConstraint(Sketcher.Constraint("DistanceX", -1, 1, 8, 2, Q("11.75 in")))
sketch3.addConstraint(Sketcher.Constraint("DistanceY", 0, 2, -1, 1, Q("6.245 in")))
sketch3.setExpression("Constraints[106]", "Params.sketch3_width")
pad3 = body.newObject("PartDesign::Pad", "Pad002")
pad3.Profile = sketch3
pad3.setExpression("Length", "Params.pad3_length")

sketch4 = body.newObject("Sketcher::SketchObject", "Sketch003")
sketch4.AttachmentSupport = (doc.getObject("XY_Plane"), [""])
sketch4.MapMode = "FlatFace"
sketch4.addGeometry(Part.LineSegment(App.Vector(-609.6, 44.577, 0), App.Vector(-609.6, -44.323, 0)), False)
sketch4.addGeometry(Part.LineSegment(App.Vector(-609.6, -44.323, 0), App.Vector(-527.05, -44.323, 0)), False)
sketch4.addGeometry(Part.LineSegment(App.Vector(-527.05, -44.323, 0), App.Vector(-527.05, 44.577, 0)), False)
sketch4.addGeometry(Part.LineSegment(App.Vector(-527.05, 44.577, 0), App.Vector(-609.6, 44.577, 0)), False)
sketch4.addGeometry(Part.LineSegment(App.Vector(-444.5, -69.723, 0), App.Vector(-444.5, -158.623, 0)), False)
sketch4.addGeometry(Part.LineSegment(App.Vector(-444.5, -158.623, 0), App.Vector(-355.6, -158.623, 0)), False)
sketch4.addGeometry(Part.LineSegment(App.Vector(-355.6, -158.623, 0), App.Vector(-355.6, -69.723, 0)), False)
sketch4.addGeometry(Part.LineSegment(App.Vector(-355.6, -69.723, 0), App.Vector(-444.5, -69.723, 0)), False)
sketch4.addGeometry(Part.LineSegment(App.Vector(-444.5, 158.877, 0), App.Vector(-444.5, 69.977, 0)), False)
sketch4.addGeometry(Part.LineSegment(App.Vector(-444.5, 69.977, 0), App.Vector(-355.6, 69.977, 0)), False)
sketch4.addGeometry(Part.LineSegment(App.Vector(-355.6, 69.977, 0), App.Vector(-355.6, 158.877, 0)), False)
sketch4.addGeometry(Part.LineSegment(App.Vector(-355.6, 158.877, 0), App.Vector(-444.5, 158.877, 0)), False)
sketch4.addGeometry(Part.LineSegment(App.Vector(12.7, 158.877, 0), App.Vector(12.7, 69.977, 0)), False)
sketch4.addGeometry(Part.LineSegment(App.Vector(12.7, 69.977, 0), App.Vector(101.6, 69.977, 0)), False)
sketch4.addGeometry(Part.LineSegment(App.Vector(101.6, 69.977, 0), App.Vector(101.6, 158.877, 0)), False)
sketch4.addGeometry(Part.LineSegment(App.Vector(101.6, 158.877, 0), App.Vector(12.7, 158.877, 0)), False)
sketch4.addGeometry(Part.LineSegment(App.Vector(-158.75, 44.577, 0), App.Vector(-158.75, -44.323, 0)), False)
sketch4.addGeometry(Part.LineSegment(App.Vector(-158.75, -44.323, 0), App.Vector(-69.85, -44.323, 0)), False)
sketch4.addGeometry(Part.LineSegment(App.Vector(-69.85, -44.323, 0), App.Vector(-69.85, 44.577, 0)), False)
sketch4.addGeometry(Part.LineSegment(App.Vector(-69.85, 44.577, 0), App.Vector(-158.75, 44.577, 0)), False)
sketch4.addGeometry(Part.LineSegment(App.Vector(-101.6, -69.723, 0), App.Vector(-101.6, -158.623, 0)), False)
sketch4.addGeometry(Part.LineSegment(App.Vector(-101.6, -158.623, 0), App.Vector(-12.7, -158.623, 0)), False)
sketch4.addGeometry(Part.LineSegment(App.Vector(-12.7, -158.623, 0), App.Vector(-12.7, -69.723, 0)), False)
sketch4.addGeometry(Part.LineSegment(App.Vector(-12.7, -69.723, 0), App.Vector(-101.6, -69.723, 0)), False)
sketch4.addGeometry(Part.LineSegment(App.Vector(12.7, -69.723, 0), App.Vector(12.7, -158.623, 0)), False)
sketch4.addGeometry(Part.LineSegment(App.Vector(12.7, -158.623, 0), App.Vector(101.6, -158.623, 0)), False)
sketch4.addGeometry(Part.LineSegment(App.Vector(101.6, -158.623, 0), App.Vector(101.6, -69.723, 0)), False)
sketch4.addGeometry(Part.LineSegment(App.Vector(101.6, -69.723, 0), App.Vector(12.7, -69.723, 0)), False)
sketch4.addGeometry(Part.LineSegment(App.Vector(184.15, 44.577, 0), App.Vector(184.15, -44.323, 0)), False)
sketch4.addGeometry(Part.LineSegment(App.Vector(184.15, -44.323, 0), App.Vector(273.05, -44.323, 0)), False)
sketch4.addGeometry(Part.LineSegment(App.Vector(273.05, -44.323, 0), App.Vector(273.05, 44.577, 0)), False)
sketch4.addGeometry(Part.LineSegment(App.Vector(273.05, 44.577, 0), App.Vector(184.15, 44.577, 0)), False)
sketch4.addGeometry(Part.LineSegment(App.Vector(241.3, 158.877, 0), App.Vector(241.3, 69.977, 0)), False)
sketch4.addGeometry(Part.LineSegment(App.Vector(241.3, 69.977, 0), App.Vector(330.2, 69.977, 0)), False)
sketch4.addGeometry(Part.LineSegment(App.Vector(330.2, 69.977, 0), App.Vector(330.2, 158.877, 0)), False)
sketch4.addGeometry(Part.LineSegment(App.Vector(330.2, 158.877, 0), App.Vector(241.3, 158.877, 0)), False)
sketch4.addGeometry(Part.LineSegment(App.Vector(355.6, -69.723, 0), App.Vector(355.6, -158.623, 0)), False)
sketch4.addGeometry(Part.LineSegment(App.Vector(355.6, -158.623, 0), App.Vector(444.5, -158.623, 0)), False)
sketch4.addGeometry(Part.LineSegment(App.Vector(444.5, -158.623, 0), App.Vector(444.5, -69.723, 0)), False)
sketch4.addGeometry(Part.LineSegment(App.Vector(444.5, -69.723, 0), App.Vector(355.6, -69.723, 0)), False)
sketch4.addGeometry(Part.LineSegment(App.Vector(527.05, 44.577, 0), App.Vector(527.05, -44.323, 0)), False)
sketch4.addGeometry(Part.LineSegment(App.Vector(527.05, -44.323, 0), App.Vector(609.6, -44.323, 0)), False)
sketch4.addGeometry(Part.LineSegment(App.Vector(609.6, -44.323, 0), App.Vector(609.6, 44.577, 0)), False)
sketch4.addGeometry(Part.LineSegment(App.Vector(609.6, 44.577, 0), App.Vector(527.05, 44.577, 0)), False)
sketch4.addConstraint(Sketcher.Constraint("Coincident", 0, 2, 1, 1))
sketch4.addConstraint(Sketcher.Constraint("Coincident", 1, 2, 2, 1))
sketch4.addConstraint(Sketcher.Constraint("Coincident", 2, 2, 3, 1))
sketch4.addConstraint(Sketcher.Constraint("Coincident", 3, 2, 0, 1))
sketch4.addConstraint(Sketcher.Constraint("Coincident", 4, 2, 5, 1))
sketch4.addConstraint(Sketcher.Constraint("Coincident", 5, 2, 6, 1))
sketch4.addConstraint(Sketcher.Constraint("Coincident", 6, 2, 7, 1))
sketch4.addConstraint(Sketcher.Constraint("Coincident", 7, 2, 4, 1))
sketch4.addConstraint(Sketcher.Constraint("Coincident", 8, 2, 9, 1))
sketch4.addConstraint(Sketcher.Constraint("Coincident", 9, 2, 10, 1))
sketch4.addConstraint(Sketcher.Constraint("Coincident", 10, 2, 11, 1))
sketch4.addConstraint(Sketcher.Constraint("Coincident", 11, 2, 8, 1))
sketch4.addConstraint(Sketcher.Constraint("Coincident", 12, 2, 13, 1))
sketch4.addConstraint(Sketcher.Constraint("Coincident", 13, 2, 14, 1))
sketch4.addConstraint(Sketcher.Constraint("Coincident", 14, 2, 15, 1))
sketch4.addConstraint(Sketcher.Constraint("Coincident", 15, 2, 12, 1))
sketch4.addConstraint(Sketcher.Constraint("Coincident", 16, 2, 17, 1))
sketch4.addConstraint(Sketcher.Constraint("Coincident", 17, 2, 18, 1))
sketch4.addConstraint(Sketcher.Constraint("Coincident", 18, 2, 19, 1))
sketch4.addConstraint(Sketcher.Constraint("Coincident", 19, 2, 16, 1))
sketch4.addConstraint(Sketcher.Constraint("Coincident", 20, 2, 21, 1))
sketch4.addConstraint(Sketcher.Constraint("Coincident", 21, 2, 22, 1))
sketch4.addConstraint(Sketcher.Constraint("Coincident", 22, 2, 23, 1))
sketch4.addConstraint(Sketcher.Constraint("Coincident", 23, 2, 20, 1))
sketch4.addConstraint(Sketcher.Constraint("Coincident", 24, 2, 25, 1))
sketch4.addConstraint(Sketcher.Constraint("Coincident", 25, 2, 26, 1))
sketch4.addConstraint(Sketcher.Constraint("Coincident", 26, 2, 27, 1))
sketch4.addConstraint(Sketcher.Constraint("Coincident", 27, 2, 24, 1))
sketch4.addConstraint(Sketcher.Constraint("Coincident", 28, 2, 29, 1))
sketch4.addConstraint(Sketcher.Constraint("Coincident", 29, 2, 30, 1))
sketch4.addConstraint(Sketcher.Constraint("Coincident", 30, 2, 31, 1))
sketch4.addConstraint(Sketcher.Constraint("Coincident", 31, 2, 28, 1))
sketch4.addConstraint(Sketcher.Constraint("Coincident", 32, 2, 33, 1))
sketch4.addConstraint(Sketcher.Constraint("Coincident", 33, 2, 34, 1))
sketch4.addConstraint(Sketcher.Constraint("Coincident", 34, 2, 35, 1))
sketch4.addConstraint(Sketcher.Constraint("Coincident", 35, 2, 32, 1))
sketch4.addConstraint(Sketcher.Constraint("Coincident", 36, 2, 37, 1))
sketch4.addConstraint(Sketcher.Constraint("Coincident", 37, 2, 38, 1))
sketch4.addConstraint(Sketcher.Constraint("Coincident", 38, 2, 39, 1))
sketch4.addConstraint(Sketcher.Constraint("Coincident", 39, 2, 36, 1))
sketch4.addConstraint(Sketcher.Constraint("Coincident", 40, 2, 41, 1))
sketch4.addConstraint(Sketcher.Constraint("Coincident", 41, 2, 42, 1))
sketch4.addConstraint(Sketcher.Constraint("Coincident", 42, 2, 43, 1))
sketch4.addConstraint(Sketcher.Constraint("Coincident", 43, 2, 40, 1))
sketch4.addConstraint(Sketcher.Constraint("Vertical", 0))
sketch4.addConstraint(Sketcher.Constraint("Horizontal", 1))
sketch4.addConstraint(Sketcher.Constraint("Vertical", 2))
sketch4.addConstraint(Sketcher.Constraint("Horizontal", 3))
sketch4.addConstraint(Sketcher.Constraint("Vertical", 4))
sketch4.addConstraint(Sketcher.Constraint("Horizontal", 5))
sketch4.addConstraint(Sketcher.Constraint("Vertical", 6))
sketch4.addConstraint(Sketcher.Constraint("Horizontal", 7))
sketch4.addConstraint(Sketcher.Constraint("Vertical", 8))
sketch4.addConstraint(Sketcher.Constraint("Horizontal", 9))
sketch4.addConstraint(Sketcher.Constraint("Vertical", 10))
sketch4.addConstraint(Sketcher.Constraint("Horizontal", 11))
sketch4.addConstraint(Sketcher.Constraint("Vertical", 12))
sketch4.addConstraint(Sketcher.Constraint("Horizontal", 13))
sketch4.addConstraint(Sketcher.Constraint("Vertical", 14))
sketch4.addConstraint(Sketcher.Constraint("Horizontal", 15))
sketch4.addConstraint(Sketcher.Constraint("Vertical", 16))
sketch4.addConstraint(Sketcher.Constraint("Horizontal", 17))
sketch4.addConstraint(Sketcher.Constraint("Vertical", 18))
sketch4.addConstraint(Sketcher.Constraint("Horizontal", 19))
sketch4.addConstraint(Sketcher.Constraint("Vertical", 20))
sketch4.addConstraint(Sketcher.Constraint("Horizontal", 21))
sketch4.addConstraint(Sketcher.Constraint("Vertical", 22))
sketch4.addConstraint(Sketcher.Constraint("Horizontal", 23))
sketch4.addConstraint(Sketcher.Constraint("Vertical", 24))
sketch4.addConstraint(Sketcher.Constraint("Horizontal", 25))
sketch4.addConstraint(Sketcher.Constraint("Vertical", 26))
sketch4.addConstraint(Sketcher.Constraint("Horizontal", 27))
sketch4.addConstraint(Sketcher.Constraint("Vertical", 28))
sketch4.addConstraint(Sketcher.Constraint("Horizontal", 29))
sketch4.addConstraint(Sketcher.Constraint("Vertical", 30))
sketch4.addConstraint(Sketcher.Constraint("Horizontal", 31))
sketch4.addConstraint(Sketcher.Constraint("Vertical", 32))
sketch4.addConstraint(Sketcher.Constraint("Horizontal", 33))
sketch4.addConstraint(Sketcher.Constraint("Vertical", 34))
sketch4.addConstraint(Sketcher.Constraint("Horizontal", 35))
sketch4.addConstraint(Sketcher.Constraint("Vertical", 36))
sketch4.addConstraint(Sketcher.Constraint("Horizontal", 37))
sketch4.addConstraint(Sketcher.Constraint("Vertical", 38))
sketch4.addConstraint(Sketcher.Constraint("Horizontal", 39))
sketch4.addConstraint(Sketcher.Constraint("Vertical", 40))
sketch4.addConstraint(Sketcher.Constraint("Horizontal", 41))
sketch4.addConstraint(Sketcher.Constraint("Vertical", 42))
sketch4.addConstraint(Sketcher.Constraint("Horizontal", 43))
sketch4.addConstraint(Sketcher.Constraint("Symmetric", 21, 2, 24, 2, -2))
sketch4.addConstraint(Sketcher.Constraint("Symmetric", 23, 2, 26, 2, -2))
sketch4.addConstraint(Sketcher.Constraint("Symmetric", 5, 2, 36, 2, -2))
sketch4.addConstraint(Sketcher.Constraint("Symmetric", 7, 2, 38, 2, -2))
sketch4.addConstraint(Sketcher.Constraint("Symmetric", 1, 2, 40, 2, -2))
sketch4.addConstraint(Sketcher.Constraint("Symmetric", 3, 2, 42, 2, -2))
sketch4.addConstraint(Sketcher.Constraint("Horizontal", 9, 2, 12, 2))
sketch4.addConstraint(Sketcher.Constraint("Horizontal", 11, 2, 14, 2))
sketch4.addConstraint(Sketcher.Constraint("Horizontal", 1, 2, 16, 2))
sketch4.addConstraint(Sketcher.Constraint("Horizontal", 3, 2, 18, 2))
sketch4.addConstraint(Sketcher.Constraint("Horizontal", 5, 2, 20, 2))
sketch4.addConstraint(Sketcher.Constraint("Horizontal", 7, 2, 22, 2))
sketch4.addConstraint(Sketcher.Constraint("Horizontal", 17, 2, 28, 2))
sketch4.addConstraint(Sketcher.Constraint("Horizontal", 19, 2, 30, 2))
sketch4.addConstraint(Sketcher.Constraint("Horizontal", 13, 2, 32, 2))
sketch4.addConstraint(Sketcher.Constraint("Horizontal", 15, 2, 34, 2))
sketch4.addConstraint(Sketcher.Constraint("Vertical", 7, 2, 8, 2))
sketch4.addConstraint(Sketcher.Constraint("Vertical", 6, 2, 9, 2))
sketch4.addConstraint(Sketcher.Constraint("Vertical", 15, 2, 24, 2))
sketch4.addConstraint(Sketcher.Constraint("Vertical", 14, 2, 25, 2))
sketch4.addConstraint(Sketcher.Constraint("Equal", 11, 13))
sketch4.addConstraint(Sketcher.Constraint("Equal", 15, 17))
sketch4.addConstraint(Sketcher.Constraint("Equal", 27, 29))
sketch4.addConstraint(Sketcher.Constraint("Equal", 31, 33))
sketch4.addConstraint(Sketcher.Constraint("Equal", 39, 0))
sketch4.addConstraint(Sketcher.Constraint("Equal", 2, 4))
sketch4.addConstraint(Sketcher.Constraint("Equal", 6, 8))
sketch4.addConstraint(Sketcher.Constraint("DistanceX", 5, 1, 5, 2, Q("3.5 in")))
sketch4.addConstraint(Sketcher.Constraint("DistanceX", 0, 2, -1, 1, Q("24 in")))
sketch4.addConstraint(Sketcher.Constraint("DistanceX", 5, 2, -1, 1, Q("14 in")))
sketch4.addConstraint(Sketcher.Constraint("DistanceX", -1, 1, 13, 2, Q("4 in")))
sketch4.addConstraint(Sketcher.Constraint("DistanceX", -1, 1, 33, 2, Q("13 in")))
sketch4.addConstraint(Sketcher.Constraint("DistanceY", 4, 2, 2, 2, Q("8 in")))
sketch4.addConstraint(Sketcher.Constraint("DistanceY", 2, 2, 8, 2, Q("1 in")))
sketch4.addConstraint(Sketcher.Constraint("DistanceX", 1, 1, 1, 2, Q("3.25 in")))
sketch4.addConstraint(Sketcher.Constraint("DistanceX", 16, 2, -1, 1, Q("6.25 in")))
sketch4.addConstraint(Sketcher.Constraint("DistanceX", -1, 1, 28, 2, Q("7.25 in")))
sketch4.addConstraint(Sketcher.Constraint("DistanceY", 0, 2, -1, 1, Q("1.745 in")))
sketch4.setExpression("Constraints[115]", "Params.sketch4_width")
sketch4.setExpression("Constraints[122]", "Params.sketch4_width2")
pad4 = body.newObject("PartDesign::Pad", "Pad003")
pad4.Profile = sketch4
pad4.setExpression("Length", "Params.pad4_length")

doc.recompute()
